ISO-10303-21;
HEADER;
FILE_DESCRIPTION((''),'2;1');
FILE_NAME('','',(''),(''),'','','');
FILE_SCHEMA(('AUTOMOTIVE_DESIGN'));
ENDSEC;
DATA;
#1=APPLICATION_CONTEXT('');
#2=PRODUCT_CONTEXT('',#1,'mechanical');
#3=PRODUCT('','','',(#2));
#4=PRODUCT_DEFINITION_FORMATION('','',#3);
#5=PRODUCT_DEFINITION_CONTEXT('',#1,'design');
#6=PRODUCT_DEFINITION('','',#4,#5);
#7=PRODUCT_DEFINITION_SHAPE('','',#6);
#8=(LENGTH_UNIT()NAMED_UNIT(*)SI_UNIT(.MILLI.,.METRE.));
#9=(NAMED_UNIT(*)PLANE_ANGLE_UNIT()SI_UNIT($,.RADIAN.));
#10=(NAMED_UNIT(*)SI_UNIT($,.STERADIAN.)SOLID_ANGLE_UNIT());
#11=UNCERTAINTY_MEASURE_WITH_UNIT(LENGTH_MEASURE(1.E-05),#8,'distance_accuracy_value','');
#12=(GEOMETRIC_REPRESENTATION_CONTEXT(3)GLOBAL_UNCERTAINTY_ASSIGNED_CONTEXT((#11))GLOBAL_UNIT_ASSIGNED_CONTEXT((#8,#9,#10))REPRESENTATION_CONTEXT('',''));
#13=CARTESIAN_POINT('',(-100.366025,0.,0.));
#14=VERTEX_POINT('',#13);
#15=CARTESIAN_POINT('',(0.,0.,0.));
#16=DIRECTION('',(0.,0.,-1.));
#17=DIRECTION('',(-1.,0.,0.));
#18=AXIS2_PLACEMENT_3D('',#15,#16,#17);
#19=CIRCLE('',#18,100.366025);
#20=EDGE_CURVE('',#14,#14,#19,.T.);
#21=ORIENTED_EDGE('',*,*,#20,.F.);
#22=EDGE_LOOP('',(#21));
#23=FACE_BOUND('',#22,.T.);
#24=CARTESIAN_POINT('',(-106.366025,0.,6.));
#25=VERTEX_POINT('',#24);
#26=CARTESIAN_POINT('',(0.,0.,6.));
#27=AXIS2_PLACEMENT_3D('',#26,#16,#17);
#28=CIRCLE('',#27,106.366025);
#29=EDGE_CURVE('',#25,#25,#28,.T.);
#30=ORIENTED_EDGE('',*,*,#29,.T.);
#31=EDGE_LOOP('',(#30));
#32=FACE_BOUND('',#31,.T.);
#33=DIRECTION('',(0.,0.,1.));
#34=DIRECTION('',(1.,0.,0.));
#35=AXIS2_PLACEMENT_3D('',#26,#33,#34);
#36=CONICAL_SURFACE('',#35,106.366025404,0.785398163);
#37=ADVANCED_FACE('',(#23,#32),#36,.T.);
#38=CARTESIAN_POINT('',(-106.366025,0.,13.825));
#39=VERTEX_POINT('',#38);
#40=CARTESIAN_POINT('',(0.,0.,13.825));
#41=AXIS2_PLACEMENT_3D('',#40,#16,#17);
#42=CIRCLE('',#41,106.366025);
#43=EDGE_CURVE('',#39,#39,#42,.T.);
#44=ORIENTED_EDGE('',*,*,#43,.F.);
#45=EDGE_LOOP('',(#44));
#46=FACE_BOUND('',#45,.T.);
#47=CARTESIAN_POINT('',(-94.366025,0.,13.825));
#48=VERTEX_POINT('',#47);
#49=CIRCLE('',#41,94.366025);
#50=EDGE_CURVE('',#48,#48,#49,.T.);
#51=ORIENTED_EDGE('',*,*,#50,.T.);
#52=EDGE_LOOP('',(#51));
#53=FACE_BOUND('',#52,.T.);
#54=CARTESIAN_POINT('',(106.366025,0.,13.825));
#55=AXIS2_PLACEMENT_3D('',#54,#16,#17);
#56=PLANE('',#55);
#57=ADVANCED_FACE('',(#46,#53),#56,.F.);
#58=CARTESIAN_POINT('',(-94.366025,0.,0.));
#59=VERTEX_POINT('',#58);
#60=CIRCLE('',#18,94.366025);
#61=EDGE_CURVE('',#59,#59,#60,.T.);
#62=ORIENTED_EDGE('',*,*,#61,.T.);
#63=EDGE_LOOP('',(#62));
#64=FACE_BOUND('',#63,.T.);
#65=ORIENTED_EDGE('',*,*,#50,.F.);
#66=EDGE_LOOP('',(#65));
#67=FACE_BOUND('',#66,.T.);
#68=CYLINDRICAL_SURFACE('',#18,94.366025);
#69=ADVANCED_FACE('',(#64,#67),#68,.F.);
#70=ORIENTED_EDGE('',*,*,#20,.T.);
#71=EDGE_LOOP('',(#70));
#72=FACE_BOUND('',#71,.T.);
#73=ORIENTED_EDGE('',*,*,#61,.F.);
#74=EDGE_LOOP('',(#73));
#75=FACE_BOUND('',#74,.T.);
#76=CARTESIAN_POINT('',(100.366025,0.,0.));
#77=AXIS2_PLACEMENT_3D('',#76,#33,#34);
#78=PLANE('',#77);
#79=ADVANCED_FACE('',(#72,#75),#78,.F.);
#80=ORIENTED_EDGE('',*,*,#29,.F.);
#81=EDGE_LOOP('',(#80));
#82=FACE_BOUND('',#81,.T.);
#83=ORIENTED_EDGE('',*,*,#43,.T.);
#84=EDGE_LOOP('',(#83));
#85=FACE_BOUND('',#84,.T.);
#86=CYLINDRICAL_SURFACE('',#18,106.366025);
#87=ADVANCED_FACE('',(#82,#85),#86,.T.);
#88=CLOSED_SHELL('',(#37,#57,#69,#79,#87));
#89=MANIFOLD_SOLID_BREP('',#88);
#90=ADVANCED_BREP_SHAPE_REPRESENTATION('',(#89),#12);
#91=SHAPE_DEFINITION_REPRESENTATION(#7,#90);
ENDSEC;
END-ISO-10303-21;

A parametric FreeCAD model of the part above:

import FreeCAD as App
import Part
import Sketcher

V = App.Vector
Q = App.Units.Quantity

doc = App.newDocument("Part")
body = doc.addObject("PartDesign::Body", "Body")

sketch1 = doc.addObject("Sketcher::SketchObject", "Sketch")
body.addObject(sketch1)
sketch1.AttachmentSupport = (doc.XZ_Plane, [""])
sketch1.MapMode = "FlatFace"
sketch1.addGeometry([
    Part.LineSegment(V(100, 0, 0), V(94, 0, 0)),
    Part.LineSegment(V(94, 0, 0), V(94, 14, 0)),
    Part.LineSegment(V(94, 14, 0), V(106, 14, 0)),
    Part.LineSegment(V(106, 14, 0), V(106, 6, 0)),
    Part.LineSegment(V(106, 6, 0), V(100, 0, 0)),
], False)
sketch1.addConstraint([
    Sketcher.Constraint("Coincident", 0, 2, 1, 1),
    Sketcher.Constraint("Coincident", 1, 2, 2, 1),
    Sketcher.Constraint("Coincident", 2, 2, 3, 1),
    Sketcher.Constraint("Coincident", 3, 2, 4, 1),
    Sketcher.Constraint("Coincident", 4, 2, 0, 1),
    Sketcher.Constraint("Horizontal", 0),
    Sketcher.Constraint("Vertical", 1),
    Sketcher.Constraint("Horizontal", 2),
    Sketcher.Constraint("Vertical", 3),
    Sketcher.Constraint("PointOnObject", 0, 2, -1),
    Sketcher.Constraint("DistanceX", 0, 2, 0, 1, Q("6 mm")),
    Sketcher.Constraint("DistanceX", 2, 1, 2, 2, Q("12 mm")),
    Sketcher.Constraint("Angle", 4, Q("-135 deg")),
    Sketcher.Constraint("DistanceY", 1, 1, 1, 2, Q("13.825 mm")),
    Sketcher.Constraint("DistanceX", -1, 1, 0, 2, Q("94.366025 mm")),
])
revolution = doc.addObject("PartDesign::Revolution", "Revolution")
body.addObject(revolution)
revolution.Profile = sketch1
revolution.ReferenceAxis = (sketch1, ["V_Axis"])
revolution.Angle = 360

doc.recompute()
